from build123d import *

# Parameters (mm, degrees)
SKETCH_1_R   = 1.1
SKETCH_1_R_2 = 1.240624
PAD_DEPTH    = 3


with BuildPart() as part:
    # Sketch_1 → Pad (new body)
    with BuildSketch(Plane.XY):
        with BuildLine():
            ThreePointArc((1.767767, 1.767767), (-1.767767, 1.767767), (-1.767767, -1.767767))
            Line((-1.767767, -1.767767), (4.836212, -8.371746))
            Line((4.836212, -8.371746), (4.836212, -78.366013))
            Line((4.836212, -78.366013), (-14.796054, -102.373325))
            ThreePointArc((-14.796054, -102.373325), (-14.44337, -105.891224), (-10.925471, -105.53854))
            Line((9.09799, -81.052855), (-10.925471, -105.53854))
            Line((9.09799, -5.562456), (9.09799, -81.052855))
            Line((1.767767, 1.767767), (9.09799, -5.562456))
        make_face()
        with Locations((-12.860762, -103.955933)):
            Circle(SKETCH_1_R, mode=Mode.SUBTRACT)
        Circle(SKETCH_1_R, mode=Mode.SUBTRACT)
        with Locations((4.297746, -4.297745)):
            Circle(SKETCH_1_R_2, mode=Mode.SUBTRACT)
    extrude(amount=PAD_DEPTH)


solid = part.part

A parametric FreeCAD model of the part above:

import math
import FreeCAD as App
import Part
import Sketcher
from FreeCAD import Vector
Q = App.Units.Quantity

doc = App.newDocument("Part")
body = doc.addObject("PartDesign::Body", "Body")

sketch1 = body.newObject("Sketcher::SketchObject", "Sketch")
sketch1.AttachmentSupport = (doc.getObject("XY_Plane"), [""])
sketch1.MapMode = "FlatFace"
sketch1.addGeometry([
    Part.ArcOfCircle(Part.Circle(Vector(0, 0, 0), Vector(0, 0, 1), 2.5), math.radians(45), math.radians(225)),
    Part.LineSegment(Vector(-1.8, -1.8, 0), Vector(4.8, -8.4, 0)),
    Part.LineSegment(Vector(4.8, -8.4, 0), Vector(4.8, -78.4, 0)),
    Part.LineSegment(Vector(4.8, -78.4, 0), Vector(-14.8, -102.4, 0)),
    Part.ArcOfCircle(Part.Circle(Vector(-12.9, -104, 0), Vector(0, 0, 1), 2.5), math.radians(141), math.radians(321)),
    Part.LineSegment(Vector(-10.9, -105.5, 0), Vector(9.1, -81.1, 0)),
    Part.LineSegment(Vector(9.1, -81.1, 0), Vector(9.1, -5.6, 0)),
    Part.LineSegment(Vector(9.1, -5.6, 0), Vector(1.8, 1.8, 0)),
    Part.Circle(Vector(-12.9, -104, 0), Vector(0, 0, 1), 1.1),
    Part.Circle(Vector(0, 0, 0), Vector(0, 0, 1), 1.1),
    Part.Circle(Vector(4.3, -4.3, 0), Vector(0, 0, 1), 1.2),
], False)
sketch1.addConstraint([
    Sketcher.Constraint("Tangent", 0, 2, 1, 1),
    Sketcher.Constraint("Coincident", 1, 2, 2, 1),
    Sketcher.Constraint("Coincident", 2, 2, 3, 1),
    Sketcher.Constraint("Tangent", 3, 2, 4, 1),
    Sketcher.Constraint("Tangent", 4, 2, 5, 1),
    Sketcher.Constraint("Coincident", 5, 2, 6, 1),
    Sketcher.Constraint("Coincident", 6, 2, 7, 1),
    Sketcher.Constraint("Tangent", 7, 2, 0, 1),
    Sketcher.Constraint("Vertical", 2),
    Sketcher.Constraint("Vertical", 6),
    Sketcher.Constraint("Coincident", 0, 3, -1, 1),
    Sketcher.Constraint("Coincident", 9, 3, -1, 1),
    Sketcher.Constraint("Coincident", 8, 3, 4, 3),
    Sketcher.Constraint("Equal", 0, 4),
    Sketcher.Constraint("Equal", 8, 9),
    Sketcher.Constraint("Parallel", 3, 5),
    Sketcher.Constraint("Parallel", 1, 7),
    Sketcher.Constraint("Diameter", 8, 2.2),
    Sketcher.Constraint("Radius", 0, 2.5),
    Sketcher.Constraint("Angle", 1, Q("-45 deg")),
    Sketcher.Constraint("Diameter", 10, 2.481248),
    Sketcher.Constraint("DistanceY", 6, 1, 6, 2, 75.490399),
    Sketcher.Constraint("DistanceY", 1, 2, 10, 3, 4.074001),
    Sketcher.Constraint("Distance", 7, 10.366501),
    Sketcher.Constraint("DistanceX", 3, 2, 10, 3, 19.0938),
    Sketcher.Constraint("Distance", 3, 31.012528),
    Sketcher.Constraint("DistanceY", 2, 2, 2, 1, 69.994267),
    Sketcher.Constraint("DistanceX", 8, 3, -1, 1, 12.860762),
])
pad1 = body.newObject("PartDesign::Pad", "Pad")
pad1.Profile = sketch1
pad1.Length = 3

doc.recompute()
